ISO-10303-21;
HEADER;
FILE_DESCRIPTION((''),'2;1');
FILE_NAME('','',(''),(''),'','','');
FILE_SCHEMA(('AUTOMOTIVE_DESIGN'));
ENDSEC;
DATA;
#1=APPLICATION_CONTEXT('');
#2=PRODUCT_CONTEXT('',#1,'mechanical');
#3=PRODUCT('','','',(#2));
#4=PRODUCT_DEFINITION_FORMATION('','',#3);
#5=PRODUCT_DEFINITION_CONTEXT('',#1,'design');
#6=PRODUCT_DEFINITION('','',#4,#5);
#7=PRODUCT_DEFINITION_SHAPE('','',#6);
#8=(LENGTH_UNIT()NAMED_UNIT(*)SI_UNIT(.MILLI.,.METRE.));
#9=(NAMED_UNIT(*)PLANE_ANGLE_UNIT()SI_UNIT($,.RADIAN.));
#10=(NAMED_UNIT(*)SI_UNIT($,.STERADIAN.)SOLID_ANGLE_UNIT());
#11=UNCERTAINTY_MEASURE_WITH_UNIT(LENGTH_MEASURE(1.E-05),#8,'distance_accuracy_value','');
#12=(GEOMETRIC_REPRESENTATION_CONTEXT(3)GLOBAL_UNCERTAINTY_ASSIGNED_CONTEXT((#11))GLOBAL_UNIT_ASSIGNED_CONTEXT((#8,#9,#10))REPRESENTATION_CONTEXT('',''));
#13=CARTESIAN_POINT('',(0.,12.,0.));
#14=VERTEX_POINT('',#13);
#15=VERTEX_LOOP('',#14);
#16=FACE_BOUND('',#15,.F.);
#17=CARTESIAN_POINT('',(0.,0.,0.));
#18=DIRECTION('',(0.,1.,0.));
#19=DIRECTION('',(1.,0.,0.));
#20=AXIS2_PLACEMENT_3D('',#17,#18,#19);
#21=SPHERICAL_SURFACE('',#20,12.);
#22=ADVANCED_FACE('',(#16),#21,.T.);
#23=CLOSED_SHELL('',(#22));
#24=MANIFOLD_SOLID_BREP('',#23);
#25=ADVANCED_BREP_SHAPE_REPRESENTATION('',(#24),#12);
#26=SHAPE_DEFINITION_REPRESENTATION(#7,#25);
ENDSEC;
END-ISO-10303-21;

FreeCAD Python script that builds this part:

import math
import FreeCAD as App
import Part
import Sketcher
from FreeCAD import Vector
Q = App.Units.Quantity

doc = App.newDocument("Part")
params = doc.addObject("Spreadsheet::Sheet", "Params")
for row, (alias, value) in enumerate([
    ("sketch1_radius", "12 mm"),
    ("revolution_angle", "360 deg"),
], start=1):
    params.set(f"A{row}", alias)
    params.set(f"B{row}", "=" + value)
    params.setAlias(f"B{row}", alias)

body = doc.addObject("PartDesign::Body", "Body")

sketch1 = body.newObject("Sketcher::SketchObject", "Sketch")
sketch1.AttachmentSupport = (doc.getObject("XY_Plane"), [""])
sketch1.MapMode = "FlatFace"
sketch1.addGeometry([
    Part.LineSegment(Vector(0, 12, 0), Vector(0, -12, 0)),
    Part.ArcOfCircle(Part.Circle(Vector(0, 0, 0), Vector(0, 0, 1), 12), math.radians(-90), math.radians(90)),
], False)
sketch1.addConstraint([
    Sketcher.Constraint("Coincident", 0, 1, 1, 2),
    Sketcher.Constraint("Coincident", 1, 1, 0, 2),
    Sketcher.Constraint("Vertical", 0),
    Sketcher.Constraint("Coincident", 1, 3, -1, 1),
    Sketcher.Constraint("PointOnObject", 0, 1, -2),
    Sketcher.Constraint("Radius", 1, Q("12 mm")),
])
sketch1.setExpression("Constraints[5]", "Params.sketch1_radius")
revolution = body.newObject("PartDesign::Revolution", "Revolution")
revolution.Profile = sketch1
revolution.ReferenceAxis = (sketch1, ["V_Axis"])
revolution.setExpression("Angle", "Params.revolution_angle")

doc.recompute()
